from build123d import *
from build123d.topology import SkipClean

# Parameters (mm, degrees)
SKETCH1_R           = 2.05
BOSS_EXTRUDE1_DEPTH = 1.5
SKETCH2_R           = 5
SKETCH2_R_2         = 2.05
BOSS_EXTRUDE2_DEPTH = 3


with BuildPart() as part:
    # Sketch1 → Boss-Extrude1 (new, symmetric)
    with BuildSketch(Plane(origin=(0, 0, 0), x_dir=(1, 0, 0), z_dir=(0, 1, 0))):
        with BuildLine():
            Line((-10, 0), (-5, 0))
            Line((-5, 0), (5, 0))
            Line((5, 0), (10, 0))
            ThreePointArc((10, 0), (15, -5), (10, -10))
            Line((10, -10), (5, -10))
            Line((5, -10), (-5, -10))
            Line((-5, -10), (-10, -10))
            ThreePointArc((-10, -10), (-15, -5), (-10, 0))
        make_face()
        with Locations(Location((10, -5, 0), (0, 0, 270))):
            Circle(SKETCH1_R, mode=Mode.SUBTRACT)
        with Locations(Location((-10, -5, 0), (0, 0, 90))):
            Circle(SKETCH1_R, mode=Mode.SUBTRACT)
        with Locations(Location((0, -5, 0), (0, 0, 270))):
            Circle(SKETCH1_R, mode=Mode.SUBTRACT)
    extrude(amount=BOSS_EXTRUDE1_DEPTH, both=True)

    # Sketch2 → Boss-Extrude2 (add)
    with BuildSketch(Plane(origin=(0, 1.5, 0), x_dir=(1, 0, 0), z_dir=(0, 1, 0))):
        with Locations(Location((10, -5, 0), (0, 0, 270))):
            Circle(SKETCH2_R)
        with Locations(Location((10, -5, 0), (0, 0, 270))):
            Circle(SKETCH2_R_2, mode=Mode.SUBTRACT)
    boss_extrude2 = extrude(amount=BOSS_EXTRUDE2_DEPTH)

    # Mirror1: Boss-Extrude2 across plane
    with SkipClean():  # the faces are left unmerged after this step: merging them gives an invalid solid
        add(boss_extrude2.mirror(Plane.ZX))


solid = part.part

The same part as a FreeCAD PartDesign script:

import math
import FreeCAD as App
import Part
import Sketcher

doc = App.newDocument("Part")
body = doc.addObject("PartDesign::Body", "Body")

sketch1 = body.newObject("Sketcher::SketchObject", "Sketch")
sketch1.AttachmentSupport = (doc.getObject("XZ_Plane"), [""])
sketch1.MapMode = "FlatFace"
sketch1.addGeometry(Part.LineSegment(App.Vector(10, 0, 0), App.Vector(-10, 0, 0)), False)
sketch1.addGeometry(Part.ArcOfCircle(Part.Circle(App.Vector(-10, 5, 0), App.Vector(0, 0, 1), 5), math.radians(90), math.radians(270)), False)
sketch1.addGeometry(Part.LineSegment(App.Vector(-10, 10, 0), App.Vector(10, 10, 0)), False)
sketch1.addGeometry(Part.ArcOfCircle(Part.Circle(App.Vector(10, 5, 0), App.Vector(0, 0, 1), 5), math.radians(-90), math.radians(90)), False)
sketch1.addGeometry(Part.Circle(App.Vector(10, 5, 0), App.Vector(0, 0, 1), 2.05), False)
sketch1.addGeometry(Part.Circle(App.Vector(0, 5, 0), App.Vector(0, 0, 1), 2.05), False)
sketch1.addGeometry(Part.Circle(App.Vector(-10, 5, 0), App.Vector(0, 0, 1), 2.05), False)
sketch1.addConstraint(Sketcher.Constraint("Tangent", 0, 2, 1, 2))
sketch1.addConstraint(Sketcher.Constraint("Tangent", 1, 1, 2, 1))
sketch1.addConstraint(Sketcher.Constraint("Tangent", 2, 2, 3, 2))
sketch1.addConstraint(Sketcher.Constraint("Tangent", 3, 1, 0, 1))
sketch1.addConstraint(Sketcher.Constraint("Horizontal", 0))
sketch1.addConstraint(Sketcher.Constraint("Horizontal", 2))
sketch1.addConstraint(Sketcher.Constraint("Coincident", 4, 3, 3, 3))
sketch1.addConstraint(Sketcher.Constraint("Coincident", 6, 3, 1, 3))
sketch1.addConstraint(Sketcher.Constraint("Equal", 4, 5))
sketch1.addConstraint(Sketcher.Constraint("Equal", 5, 6))
sketch1.addConstraint(Sketcher.Constraint("Symmetric", 0, 2, 3, 1, -1, 1))
sketch1.addConstraint(Sketcher.Constraint("PointOnObject", 5, 3, -2))
sketch1.addConstraint(Sketcher.Constraint("Horizontal", 4, 3, 5, 3))
sketch1.addConstraint(Sketcher.Constraint("Radius", 1, 5.0))
sketch1.addConstraint(Sketcher.Constraint("Diameter", 4, 4.1))
sketch1.addConstraint(Sketcher.Constraint("DistanceX", 0, 2, 0, 1, 20.0))
pad1 = body.newObject("PartDesign::Pad", "Pad")
pad1.Profile = sketch1
pad1.Length = 3
pad1.Midplane = True

sketch2 = body.newObject("Sketcher::SketchObject", "Sketch001")
sketch2.AttachmentSupport = (doc.getObject("XZ_Plane"), [""])
sketch2.MapMode = "FlatFace"
sketch2.AttachmentOffset = App.Placement(App.Vector(0, 0, -1.5), App.Rotation())
sketch2.addGeometry(Part.Circle(App.Vector(10, 5, 0), App.Vector(0, 0, 1), 5), False)
sketch2.addGeometry(Part.Circle(App.Vector(10, 5, 0), App.Vector(0, 0, 1), 2.05), False)
sketch2.addConstraint(Sketcher.Constraint("Coincident", 1, 3, 0, 3))
sketch2.addConstraint(Sketcher.Constraint("Diameter", 0, 10.0))
sketch2.addConstraint(Sketcher.Constraint("Diameter", 1, 4.1))
sketch2.addConstraint(Sketcher.Constraint("DistanceX", -1, 1, 0, 3, 10.0))
sketch2.addConstraint(Sketcher.Constraint("DistanceY", -1, 1, 0, 3, 5.0))
pad2 = body.newObject("PartDesign::Pad", "Pad001")
pad2.Profile = sketch2
pad2.Length = 3
pad2.Reversed = True
doc.recompute()

mirrored = body.newObject("PartDesign::Mirrored", "Mirrored")
mirrored.Originals = [pad2]
mirrored.MirrorPlane = (doc.getObject("XZ_Plane"), [""])
body.Tip = mirrored

doc.recompute()
